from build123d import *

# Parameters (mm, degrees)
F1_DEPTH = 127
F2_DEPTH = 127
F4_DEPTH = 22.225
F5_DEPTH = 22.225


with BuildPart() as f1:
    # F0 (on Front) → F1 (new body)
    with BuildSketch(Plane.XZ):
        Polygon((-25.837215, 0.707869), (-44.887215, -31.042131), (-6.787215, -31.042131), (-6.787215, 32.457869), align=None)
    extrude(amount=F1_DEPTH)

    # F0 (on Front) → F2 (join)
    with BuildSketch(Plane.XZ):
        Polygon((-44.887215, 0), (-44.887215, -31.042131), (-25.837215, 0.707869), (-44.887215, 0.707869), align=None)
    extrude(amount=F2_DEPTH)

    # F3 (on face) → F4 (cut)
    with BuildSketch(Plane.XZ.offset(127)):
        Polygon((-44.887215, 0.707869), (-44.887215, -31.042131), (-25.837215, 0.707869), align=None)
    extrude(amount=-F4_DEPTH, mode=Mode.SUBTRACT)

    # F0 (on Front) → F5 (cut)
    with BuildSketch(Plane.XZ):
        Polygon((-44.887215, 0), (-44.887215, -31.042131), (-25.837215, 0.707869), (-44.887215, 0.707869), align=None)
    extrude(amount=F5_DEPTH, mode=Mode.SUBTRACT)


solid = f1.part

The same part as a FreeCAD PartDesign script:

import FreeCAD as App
import Part
import Sketcher
Q = App.Units.Quantity

doc = App.newDocument("Part")
body = doc.addObject("PartDesign::Body", "Body")

# Sketch on XZ plane
sketch1 = body.newObject("Sketcher::SketchObject", "Sketch")
sketch1.AttachmentSupport = (doc.getObject("XZ_Plane"), [""])
sketch1.MapMode = "FlatFace"
sketch1.addGeometry(Part.LineSegment(App.Vector(-45, -31, 0), App.Vector(-7, -31, 0)), False)
sketch1.addGeometry(Part.LineSegment(App.Vector(-7, -31, 0), App.Vector(-7, 32, 0)), False)
sketch1.addGeometry(Part.LineSegment(App.Vector(-7, 32, 0), App.Vector(-45, -31, 0)), False)
sketch1.addConstraint(Sketcher.Constraint("Coincident", 0, 2, 1, 1))
sketch1.addConstraint(Sketcher.Constraint("Coincident", 1, 2, 2, 1))
sketch1.addConstraint(Sketcher.Constraint("Coincident", 2, 2, 0, 1))
sketch1.addConstraint(Sketcher.Constraint("Horizontal", 0))
sketch1.addConstraint(Sketcher.Constraint("Vertical", 1))
sketch1.addConstraint(Sketcher.Constraint("DistanceX", 0, 1, 0, 2, Q("1.5 in")))
sketch1.addConstraint(Sketcher.Constraint("DistanceY", 1, 1, 1, 2, Q("2.5 in")))
sketch1.addConstraint(Sketcher.Constraint("DistanceY", 0, 2, -1, 1, 31.042131))
sketch1.addConstraint(Sketcher.Constraint("DistanceX", 0, 2, -1, 1, 6.787215))
pad1 = body.newObject("PartDesign::Pad", "Pad")
pad1.Profile = sketch1
pad1.Length = Q("5 in")

# Sketch on XZ plane
sketch2 = body.newObject("Sketcher::SketchObject", "Sketch001")
sketch2.AttachmentSupport = (doc.getObject("XZ_Plane"), [""])
sketch2.MapMode = "FlatFace"
sketch2.addGeometry(Part.LineSegment(App.Vector(-45, -31, 0), App.Vector(-26, 1, 0)), False)
sketch2.addGeometry(Part.LineSegment(App.Vector(-26, 1, 0), App.Vector(-45, 1, 0)), False)
sketch2.addGeometry(Part.LineSegment(App.Vector(-45, 1, 0), App.Vector(-45, -31, 0)), False)
sketch2.addConstraint(Sketcher.Constraint("Coincident", 0, 2, 1, 1))
sketch2.addConstraint(Sketcher.Constraint("Coincident", 1, 2, 2, 1))
sketch2.addConstraint(Sketcher.Constraint("Coincident", 2, 2, 0, 1))
sketch2.addConstraint(Sketcher.Constraint("Horizontal", 1))
sketch2.addConstraint(Sketcher.Constraint("Vertical", 2))
sketch2.addConstraint(Sketcher.Constraint("DistanceX", 1, 2, 1, 1, Q("0.75 in")))
sketch2.addConstraint(Sketcher.Constraint("DistanceY", 2, 2, 2, 1, Q("1.25 in")))
sketch2.addConstraint(Sketcher.Constraint("DistanceY", -1, 1, 0, 2, 0.707869))
sketch2.addConstraint(Sketcher.Constraint("DistanceX", 0, 2, -1, 1, 25.837215))
pad2 = body.newObject("PartDesign::Pad", "Pad001")
pad2.Profile = sketch2
pad2.Length = Q("5 in")

# Sketch on XZ plane
sketch3 = body.newObject("Sketcher::SketchObject", "Sketch002")
sketch3.AttachmentSupport = (doc.getObject("XZ_Plane"), [""])
sketch3.MapMode = "FlatFace"
sketch3.AttachmentOffset = App.Placement(App.Vector(0, 0, 5 * 25.4), App.Rotation())
sketch3.addGeometry(Part.LineSegment(App.Vector(-45, 1, 0), App.Vector(-45, -31, 0)), False)
sketch3.addGeometry(Part.LineSegment(App.Vector(-45, -31, 0), App.Vector(-26, 1, 0)), False)
sketch3.addGeometry(Part.LineSegment(App.Vector(-26, 1, 0), App.Vector(-45, 1, 0)), False)
sketch3.addConstraint(Sketcher.Constraint("Coincident", 0, 2, 1, 1))
sketch3.addConstraint(Sketcher.Constraint("Coincident", 1, 2, 2, 1))
sketch3.addConstraint(Sketcher.Constraint("Coincident", 2, 2, 0, 1))
sketch3.addConstraint(Sketcher.Constraint("Vertical", 0))
sketch3.addConstraint(Sketcher.Constraint("Horizontal", 2))
sketch3.addConstraint(Sketcher.Constraint("DistanceX", 2, 2, 2, 1, Q("0.75 in")))
sketch3.addConstraint(Sketcher.Constraint("DistanceY", 0, 2, 0, 1, Q("1.25 in")))
sketch3.addConstraint(Sketcher.Constraint("DistanceY", 0, 2, -1, 1, 31.042131))
sketch3.addConstraint(Sketcher.Constraint("DistanceX", 0, 2, -1, 1, 44.887215))
pocket1 = body.newObject("PartDesign::Pocket", "Pocket")
pocket1.Profile = sketch3
pocket1.Length = Q("0.875 in")

# Sketch on XZ plane
sketch4 = body.newObject("Sketcher::SketchObject", "Sketch003")
sketch4.AttachmentSupport = (doc.getObject("XZ_Plane"), [""])
sketch4.MapMode = "FlatFace"
sketch4.addGeometry(Part.LineSegment(App.Vector(-45, -31, 0), App.Vector(-26, 1, 0)), False)
sketch4.addGeometry(Part.LineSegment(App.Vector(-26, 1, 0), App.Vector(-45, 1, 0)), False)
sketch4.addGeometry(Part.LineSegment(App.Vector(-45, 1, 0), App.Vector(-45, -31, 0)), False)
sketch4.addConstraint(Sketcher.Constraint("Coincident", 0, 2, 1, 1))
sketch4.addConstraint(Sketcher.Constraint("Coincident", 1, 2, 2, 1))
sketch4.addConstraint(Sketcher.Constraint("Coincident", 2, 2, 0, 1))
sketch4.addConstraint(Sketcher.Constraint("Horizontal", 1))
sketch4.addConstraint(Sketcher.Constraint("Vertical", 2))
sketch4.addConstraint(Sketcher.Constraint("DistanceX", 1, 2, 1, 1, Q("0.75 in")))
sketch4.addConstraint(Sketcher.Constraint("DistanceY", 2, 2, 2, 1, Q("1.25 in")))
sketch4.addConstraint(Sketcher.Constraint("DistanceY", -1, 1, 0, 2, 0.707869))
sketch4.addConstraint(Sketcher.Constraint("DistanceX", 0, 2, -1, 1, 25.837215))
pocket2 = body.newObject("PartDesign::Pocket", "Pocket001")
pocket2.Profile = sketch4
pocket2.Length = Q("0.875 in")
pocket2.Reversed = True

doc.recompute()
